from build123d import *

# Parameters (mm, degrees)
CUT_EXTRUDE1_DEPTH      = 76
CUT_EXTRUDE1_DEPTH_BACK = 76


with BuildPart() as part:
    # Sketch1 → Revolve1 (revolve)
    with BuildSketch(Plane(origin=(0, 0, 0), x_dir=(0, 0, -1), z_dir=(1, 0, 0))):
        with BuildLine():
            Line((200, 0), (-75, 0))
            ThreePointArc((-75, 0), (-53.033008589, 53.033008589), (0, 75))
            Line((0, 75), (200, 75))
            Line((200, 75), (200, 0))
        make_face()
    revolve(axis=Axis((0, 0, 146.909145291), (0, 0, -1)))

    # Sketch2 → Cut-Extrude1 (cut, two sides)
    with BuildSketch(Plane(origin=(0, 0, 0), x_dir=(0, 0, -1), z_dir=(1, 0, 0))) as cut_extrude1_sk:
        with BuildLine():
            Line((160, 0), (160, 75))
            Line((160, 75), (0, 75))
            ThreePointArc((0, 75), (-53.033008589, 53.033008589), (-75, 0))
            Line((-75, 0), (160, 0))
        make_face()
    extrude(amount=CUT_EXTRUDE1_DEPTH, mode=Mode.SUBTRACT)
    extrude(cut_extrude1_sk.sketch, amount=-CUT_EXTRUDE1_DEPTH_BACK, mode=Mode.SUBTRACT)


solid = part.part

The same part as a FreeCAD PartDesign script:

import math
import FreeCAD as App
import Part
import Sketcher

V = App.Vector

doc = App.newDocument("Part")
body = doc.addObject("PartDesign::Body", "Body")

# Sketch on YZ plane
sketch1 = body.newObject("Sketcher::SketchObject", "Sketch")
sketch1.AttachmentSupport = (doc.getObject("YZ_Plane"), [""])
sketch1.MapMode = "FlatFace"
sketch1.addGeometry(Part.LineSegment(V(0, 75, 0), V(0, -200, 0)), False)
sketch1.addGeometry(Part.LineSegment(V(0, -200, 0), V(75, -200, 0)), False)
sketch1.addGeometry(Part.LineSegment(V(75, -200, 0), V(75, 0, 0)), False)
sketch1.addGeometry(Part.ArcOfCircle(Part.Circle(V(0, 0, 0), V(0, 0, 1), 75), math.radians(0), math.radians(90)), False)
sketch1.addConstraint(Sketcher.Constraint("Coincident", 0, 2, 1, 1))
sketch1.addConstraint(Sketcher.Constraint("Coincident", 1, 2, 2, 1))
sketch1.addConstraint(Sketcher.Constraint("Tangent", 2, 2, 3, 1))
sketch1.addConstraint(Sketcher.Constraint("Coincident", 3, 2, 0, 1))
sketch1.addConstraint(Sketcher.Constraint("Vertical", 0))
sketch1.addConstraint(Sketcher.Constraint("Horizontal", 1))
sketch1.addConstraint(Sketcher.Constraint("Vertical", 2))
sketch1.addConstraint(Sketcher.Constraint("Coincident", 3, 3, -1, 1))
sketch1.addConstraint(Sketcher.Constraint("PointOnObject", 0, 2, -2))
sketch1.addConstraint(Sketcher.Constraint("Radius", 3, 75.0))
sketch1.addConstraint(Sketcher.Constraint("DistanceY", 0, 2, 0, 1, 275.0))
revolution = body.newObject("PartDesign::Revolution", "Revolution")
revolution.Profile = sketch1
revolution.ReferenceAxis = (sketch1, ["V_Axis"])
revolution.Angle = 360

# Sketch on YZ plane
sketch2 = body.newObject("Sketcher::SketchObject", "Sketch001")
sketch2.AttachmentSupport = (doc.getObject("YZ_Plane"), [""])
sketch2.MapMode = "FlatFace"
sketch2.addGeometry(Part.LineSegment(V(0, -160, 0), V(75, -160, 0)), False)
sketch2.addGeometry(Part.LineSegment(V(75, -160, 0), V(75, 0, 0)), False)
sketch2.addGeometry(Part.ArcOfCircle(Part.Circle(V(0, 0, 0), V(0, 0, 1), 75), math.radians(0), math.radians(90)), False)
sketch2.addGeometry(Part.LineSegment(V(0, 75, 0), V(0, -160, 0)), False)
sketch2.addConstraint(Sketcher.Constraint("Coincident", 0, 2, 1, 1))
sketch2.addConstraint(Sketcher.Constraint("Tangent", 1, 2, 2, 1))
sketch2.addConstraint(Sketcher.Constraint("Coincident", 2, 2, 3, 1))
sketch2.addConstraint(Sketcher.Constraint("Coincident", 3, 2, 0, 1))
sketch2.addConstraint(Sketcher.Constraint("Horizontal", 0))
sketch2.addConstraint(Sketcher.Constraint("Vertical", 1))
sketch2.addConstraint(Sketcher.Constraint("Vertical", 3))
sketch2.addConstraint(Sketcher.Constraint("Coincident", 2, 3, -1, 1))
sketch2.addConstraint(Sketcher.Constraint("PointOnObject", 2, 2, -2))
sketch2.addConstraint(Sketcher.Constraint("Radius", 2, 75.0))
sketch2.addConstraint(Sketcher.Constraint("DistanceY", 1, 1, 1, 2, 160.0))
pocket1 = body.newObject("PartDesign::Pocket", "Pocket")
pocket1.Profile = sketch2
pocket1.Type = "ThroughAll"
pocket1.Midplane = True

doc.recompute()
